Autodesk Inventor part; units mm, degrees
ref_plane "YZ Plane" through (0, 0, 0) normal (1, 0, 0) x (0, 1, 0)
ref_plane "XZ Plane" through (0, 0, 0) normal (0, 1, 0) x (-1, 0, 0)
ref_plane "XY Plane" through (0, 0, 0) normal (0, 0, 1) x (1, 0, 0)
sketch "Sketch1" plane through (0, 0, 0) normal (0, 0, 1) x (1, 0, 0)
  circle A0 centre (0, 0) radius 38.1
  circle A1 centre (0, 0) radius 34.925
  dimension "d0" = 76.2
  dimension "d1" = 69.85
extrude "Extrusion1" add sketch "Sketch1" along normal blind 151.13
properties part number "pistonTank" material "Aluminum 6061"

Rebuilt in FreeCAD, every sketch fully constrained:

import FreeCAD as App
import Part
import Sketcher
from FreeCAD import Vector
Q = App.Units.Quantity

doc = App.newDocument("Part")
body = doc.addObject("PartDesign::Body", "Body")

# Sketch on XY plane
sketch1 = doc.addObject("Sketcher::SketchObject", "Sketch")
body.addObject(sketch1)
sketch1.AttachmentSupport = (doc.XY_Plane, [""])
sketch1.MapMode = "FlatFace"
sketch1.addGeometry(Part.Circle(Vector(0, 0, 0), Vector(0, 0, 1), 38), False)
sketch1.addGeometry(Part.Circle(Vector(0, 0, 0), Vector(0, 0, 1), 35), False)
sketch1.addConstraint(Sketcher.Constraint("Coincident", 0, 3, -1, 1))
sketch1.addConstraint(Sketcher.Constraint("Coincident", 1, 3, -1, 1))
sketch1.addConstraint(Sketcher.Constraint("Diameter", 0, Q("3 in")))
sketch1.addConstraint(Sketcher.Constraint("Diameter", 1, Q("2.75 in")))
pad1 = doc.addObject("PartDesign::Pad", "Pad")
body.addObject(pad1)
pad1.Profile = sketch1
pad1.Length = Q("5.95 in")

doc.recompute()
